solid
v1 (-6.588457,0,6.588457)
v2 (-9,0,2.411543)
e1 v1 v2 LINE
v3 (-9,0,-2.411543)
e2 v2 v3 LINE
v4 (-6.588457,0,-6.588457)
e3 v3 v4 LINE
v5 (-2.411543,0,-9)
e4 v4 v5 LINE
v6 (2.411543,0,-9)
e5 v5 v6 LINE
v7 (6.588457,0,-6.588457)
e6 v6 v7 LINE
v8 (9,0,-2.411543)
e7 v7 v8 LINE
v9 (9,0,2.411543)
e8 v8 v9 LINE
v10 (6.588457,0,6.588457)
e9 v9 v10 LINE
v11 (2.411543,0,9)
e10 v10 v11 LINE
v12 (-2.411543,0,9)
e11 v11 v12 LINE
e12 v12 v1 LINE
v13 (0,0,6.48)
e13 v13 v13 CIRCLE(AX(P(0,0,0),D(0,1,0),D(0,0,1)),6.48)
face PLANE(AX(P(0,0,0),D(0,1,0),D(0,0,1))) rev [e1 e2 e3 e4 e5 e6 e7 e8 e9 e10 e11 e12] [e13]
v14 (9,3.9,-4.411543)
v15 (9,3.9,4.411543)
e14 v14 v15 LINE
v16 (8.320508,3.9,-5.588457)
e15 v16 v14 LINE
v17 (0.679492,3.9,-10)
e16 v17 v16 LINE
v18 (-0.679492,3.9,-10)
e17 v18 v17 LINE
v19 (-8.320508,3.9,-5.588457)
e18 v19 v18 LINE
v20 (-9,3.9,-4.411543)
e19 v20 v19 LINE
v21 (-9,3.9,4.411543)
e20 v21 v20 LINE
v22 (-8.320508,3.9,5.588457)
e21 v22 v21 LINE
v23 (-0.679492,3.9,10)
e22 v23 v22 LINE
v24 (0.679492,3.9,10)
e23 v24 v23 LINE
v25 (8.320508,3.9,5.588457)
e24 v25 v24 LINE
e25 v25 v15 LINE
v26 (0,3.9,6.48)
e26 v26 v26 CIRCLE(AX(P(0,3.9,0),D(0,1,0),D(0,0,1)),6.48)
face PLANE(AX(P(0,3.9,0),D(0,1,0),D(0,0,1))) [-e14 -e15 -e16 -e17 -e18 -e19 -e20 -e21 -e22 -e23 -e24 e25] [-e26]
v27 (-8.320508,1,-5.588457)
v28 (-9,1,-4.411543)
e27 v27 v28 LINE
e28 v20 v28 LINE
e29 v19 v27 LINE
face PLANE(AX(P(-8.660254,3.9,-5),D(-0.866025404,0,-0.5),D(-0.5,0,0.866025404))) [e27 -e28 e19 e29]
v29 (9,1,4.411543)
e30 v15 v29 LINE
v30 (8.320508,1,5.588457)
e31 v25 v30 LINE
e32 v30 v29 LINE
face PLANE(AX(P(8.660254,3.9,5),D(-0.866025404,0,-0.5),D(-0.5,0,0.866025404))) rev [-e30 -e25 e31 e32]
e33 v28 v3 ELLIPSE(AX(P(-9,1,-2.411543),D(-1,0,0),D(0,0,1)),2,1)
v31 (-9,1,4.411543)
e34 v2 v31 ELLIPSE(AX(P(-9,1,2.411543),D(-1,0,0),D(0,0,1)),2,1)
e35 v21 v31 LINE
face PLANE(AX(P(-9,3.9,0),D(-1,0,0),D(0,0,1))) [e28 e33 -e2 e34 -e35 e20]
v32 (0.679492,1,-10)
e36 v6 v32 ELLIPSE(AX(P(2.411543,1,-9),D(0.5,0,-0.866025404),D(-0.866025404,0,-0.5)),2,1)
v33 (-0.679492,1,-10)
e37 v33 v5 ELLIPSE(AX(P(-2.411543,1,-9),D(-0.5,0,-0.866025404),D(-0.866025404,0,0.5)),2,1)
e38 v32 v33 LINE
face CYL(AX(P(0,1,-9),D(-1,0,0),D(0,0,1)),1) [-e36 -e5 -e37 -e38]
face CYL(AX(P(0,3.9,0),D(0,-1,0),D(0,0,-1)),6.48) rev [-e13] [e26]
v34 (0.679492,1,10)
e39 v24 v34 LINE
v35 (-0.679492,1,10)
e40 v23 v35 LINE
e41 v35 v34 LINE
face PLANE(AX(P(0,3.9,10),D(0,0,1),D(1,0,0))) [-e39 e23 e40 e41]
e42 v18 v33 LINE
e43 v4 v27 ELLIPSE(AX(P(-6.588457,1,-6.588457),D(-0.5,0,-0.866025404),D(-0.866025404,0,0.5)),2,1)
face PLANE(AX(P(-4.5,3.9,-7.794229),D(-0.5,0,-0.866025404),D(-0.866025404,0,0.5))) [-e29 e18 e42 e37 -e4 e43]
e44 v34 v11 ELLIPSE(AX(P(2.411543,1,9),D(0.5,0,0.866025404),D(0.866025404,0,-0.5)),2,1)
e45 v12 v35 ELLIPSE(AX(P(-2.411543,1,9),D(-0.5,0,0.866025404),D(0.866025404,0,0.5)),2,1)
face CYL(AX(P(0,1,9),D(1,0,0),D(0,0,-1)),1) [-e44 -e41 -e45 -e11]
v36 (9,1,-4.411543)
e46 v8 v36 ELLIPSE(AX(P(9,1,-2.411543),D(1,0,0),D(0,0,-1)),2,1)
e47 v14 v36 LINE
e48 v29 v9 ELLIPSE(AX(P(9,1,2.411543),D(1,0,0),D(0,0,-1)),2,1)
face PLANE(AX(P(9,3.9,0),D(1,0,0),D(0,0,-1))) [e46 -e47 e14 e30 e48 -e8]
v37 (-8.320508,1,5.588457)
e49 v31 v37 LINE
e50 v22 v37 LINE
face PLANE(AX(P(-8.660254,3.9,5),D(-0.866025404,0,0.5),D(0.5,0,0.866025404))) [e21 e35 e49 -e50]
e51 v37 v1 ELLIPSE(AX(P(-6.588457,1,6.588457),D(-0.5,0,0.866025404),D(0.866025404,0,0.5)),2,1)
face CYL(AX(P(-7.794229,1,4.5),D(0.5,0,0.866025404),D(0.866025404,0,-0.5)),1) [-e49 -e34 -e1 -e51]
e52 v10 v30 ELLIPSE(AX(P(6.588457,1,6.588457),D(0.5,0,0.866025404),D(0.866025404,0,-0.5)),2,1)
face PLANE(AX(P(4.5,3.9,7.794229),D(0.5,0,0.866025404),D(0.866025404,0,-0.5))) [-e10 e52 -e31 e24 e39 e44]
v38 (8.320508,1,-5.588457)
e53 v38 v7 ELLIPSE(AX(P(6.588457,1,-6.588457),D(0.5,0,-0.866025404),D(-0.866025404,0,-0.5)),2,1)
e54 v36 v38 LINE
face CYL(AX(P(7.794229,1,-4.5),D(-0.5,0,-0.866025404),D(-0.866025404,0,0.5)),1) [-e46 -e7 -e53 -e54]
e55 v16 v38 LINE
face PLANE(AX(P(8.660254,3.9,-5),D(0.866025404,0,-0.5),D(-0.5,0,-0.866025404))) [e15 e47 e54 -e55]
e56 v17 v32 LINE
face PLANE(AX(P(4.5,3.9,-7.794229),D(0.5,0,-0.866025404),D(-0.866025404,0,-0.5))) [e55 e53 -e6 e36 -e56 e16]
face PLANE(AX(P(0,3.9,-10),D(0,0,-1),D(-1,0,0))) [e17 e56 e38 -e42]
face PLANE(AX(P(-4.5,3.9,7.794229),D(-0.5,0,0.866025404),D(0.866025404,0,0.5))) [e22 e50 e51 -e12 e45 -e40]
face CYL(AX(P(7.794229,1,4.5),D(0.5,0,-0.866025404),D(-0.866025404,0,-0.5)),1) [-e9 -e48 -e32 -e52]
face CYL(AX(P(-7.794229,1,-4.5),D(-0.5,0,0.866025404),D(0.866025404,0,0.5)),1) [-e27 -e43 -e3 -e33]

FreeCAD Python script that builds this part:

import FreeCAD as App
import Part
import Sketcher
Q = App.Units.Quantity


def edges_at(feature, points):
    """Names of the edges that pass closest to the given points."""
    edges = feature.Shape.Edges
    near = lambda p: min(range(len(edges)), key=lambda i: edges[i].distToShape(Part.Vertex(*p))[0])
    return sorted({f"Edge{near(p) + 1}" for p in points})


def add_polygon(sketch, points):
    """Adds a closed chain of lines whose ends are joined by coincident constraints."""
    first, n = sketch.GeometryCount, len(points)
    for a, b in zip(points, points[1:] + points[:1]):
        sketch.addGeometry(Part.LineSegment(App.Vector(*a, 0), App.Vector(*b, 0)), False)
    for i in range(n):
        sketch.addConstraint(Sketcher.Constraint("Coincident", first + i, 2, first + (i + 1) % n, 1))

doc = App.newDocument("Part")
body = doc.addObject("PartDesign::Body", "Body")

sketch1 = doc.addObject("Sketcher::SketchObject", "Sketch")
body.addObject(sketch1)
sketch1.AttachmentSupport = (doc.XZ_Plane, [""])
sketch1.MapMode = "FlatFace"
add_polygon(sketch1, [(8.3, -5.6), (0.7, -10), (-0.7, -10), (-8.3, -5.6), (-9, -4.4), (-9, 4.4), (-8.3, 5.6), (-0.7, 10), (0.7, 10), (8.3, 5.6), (9, 4.4), (9, -4.4)])
sketch1.addGeometry(Part.Circle(App.Vector(0, 0, 0), App.Vector(0, 0, 1), 6.5), False)
sketch1.addConstraint(Sketcher.Constraint("Horizontal", 1))
sketch1.addConstraint(Sketcher.Constraint("Vertical", 4))
sketch1.addConstraint(Sketcher.Constraint("Horizontal", 7))
sketch1.addConstraint(Sketcher.Constraint("Vertical", 10))
sketch1.addConstraint(Sketcher.Constraint("Coincident", 12, 3, -1, 1))
sketch1.addConstraint(Sketcher.Constraint("Symmetric", 0, 2, 6, 2, -1, 1))
sketch1.addConstraint(Sketcher.Constraint("Symmetric", 2, 2, 8, 2, -1, 1))
sketch1.addConstraint(Sketcher.Constraint("Symmetric", 3, 2, 9, 2, -1, 1))
sketch1.addConstraint(Sketcher.Constraint("Symmetric", 5, 2, 11, 2, -1, 1))
sketch1.addConstraint(Sketcher.Constraint("Symmetric", 5, 2, 8, 2, -2))
sketch1.addConstraint(Sketcher.Constraint("Perpendicular", 0, 3))
sketch1.addConstraint(Sketcher.Constraint("Perpendicular", 2, 5))
sketch1.addConstraint(Sketcher.Constraint("Perpendicular", 5, 8))
sketch1.addConstraint(Sketcher.Constraint("Perpendicular", 8, 11))
sketch1.addConstraint(Sketcher.Constraint("Horizontal", 4, 2, 9, 2))
sketch1.addConstraint(Sketcher.Constraint("Diameter", 12, Q("12.96 mm")))
sketch1.addConstraint(Sketcher.Constraint("Angle", 0, Q("-150 deg")))
sketch1.addConstraint(Sketcher.Constraint("DistanceY", 0, 2, -1, 1, Q("10 mm")))
sketch1.addConstraint(Sketcher.Constraint("DistanceX", 3, 2, -1, 1, Q("9 mm")))
sketch1.addConstraint(Sketcher.Constraint("DistanceX", 2, 2, 0, 2, Q("9 mm")))
sketch1.addConstraint(Sketcher.Constraint("DistanceY", 2, 2, 4, 2, Q("10 mm")))
pad1 = doc.addObject("PartDesign::Pad", "Pad")
body.addObject(pad1)
pad1.Profile = sketch1
pad1.Length = 3.9
pad1.Reversed = True
doc.recompute()

fillet = doc.addObject("PartDesign::Fillet", "Fillet")
body.addObject(fillet)
fillet.Base = (pad1, edges_at(pad1, [
    (-8.66, 0, -5),
    (0, 0, -10),
    (8.66, 0, -5),
    (8.66, 0, 5),
    (0, 0, 10),
    (-8.66, 0, 5),
]))
fillet.Radius = 1

doc.recompute()
